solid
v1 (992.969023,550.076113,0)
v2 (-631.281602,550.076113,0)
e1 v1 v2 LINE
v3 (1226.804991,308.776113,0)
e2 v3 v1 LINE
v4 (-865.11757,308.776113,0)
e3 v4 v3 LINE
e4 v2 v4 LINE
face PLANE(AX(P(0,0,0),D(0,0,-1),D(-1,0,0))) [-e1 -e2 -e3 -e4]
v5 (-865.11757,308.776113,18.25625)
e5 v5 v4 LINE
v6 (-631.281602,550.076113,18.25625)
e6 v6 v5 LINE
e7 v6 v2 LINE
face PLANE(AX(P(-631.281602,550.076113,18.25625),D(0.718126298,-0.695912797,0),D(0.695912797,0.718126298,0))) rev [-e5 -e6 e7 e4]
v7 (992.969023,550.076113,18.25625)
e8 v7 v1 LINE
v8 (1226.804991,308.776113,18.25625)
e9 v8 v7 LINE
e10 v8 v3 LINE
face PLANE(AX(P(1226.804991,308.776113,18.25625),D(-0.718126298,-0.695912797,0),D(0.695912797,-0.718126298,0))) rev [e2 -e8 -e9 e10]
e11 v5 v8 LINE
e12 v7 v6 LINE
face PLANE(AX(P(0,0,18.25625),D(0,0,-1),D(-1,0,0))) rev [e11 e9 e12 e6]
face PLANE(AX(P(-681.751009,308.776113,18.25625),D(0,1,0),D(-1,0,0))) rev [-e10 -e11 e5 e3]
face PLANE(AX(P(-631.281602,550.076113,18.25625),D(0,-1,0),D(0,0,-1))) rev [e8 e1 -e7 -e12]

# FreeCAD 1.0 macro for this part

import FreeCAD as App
import Part
import Sketcher
Q = App.Units.Quantity

doc = App.newDocument("Part")
params = doc.addObject("Spreadsheet::Sheet", "Params")
for row, (alias, value) in enumerate([
    ("pad1_length", "0.71875 in"),
], start=1):
    params.set(f"A{row}", alias)
    params.set(f"B{row}", "=" + value)
    params.setAlias(f"B{row}", alias)

body = doc.addObject("PartDesign::Body", "Body")

# Sketch on XY plane
sketch1 = doc.addObject("Sketcher::SketchObject", "Sketch")
body.addObject(sketch1)
sketch1.AttachmentSupport = (doc.XY_Plane, [""])
sketch1.MapMode = "FlatFace"
sketch1.addGeometry([
    Part.LineSegment(App.Vector(1227, 309, 0), App.Vector(993, 550, 0)),
    Part.LineSegment(App.Vector(993, 550, 0), App.Vector(-631, 550, 0)),
    Part.LineSegment(App.Vector(-631, 550, 0), App.Vector(-865, 309, 0)),
    Part.LineSegment(App.Vector(-865, 309, 0), App.Vector(1227, 309, 0)),
], False)
sketch1.addConstraint([
    Sketcher.Constraint("Coincident", 0, 2, 1, 1),
    Sketcher.Constraint("Coincident", 1, 2, 2, 1),
    Sketcher.Constraint("Coincident", 2, 2, 3, 1),
    Sketcher.Constraint("Coincident", 3, 2, 0, 1),
    Sketcher.Constraint("Horizontal", 1),
    Sketcher.Constraint("Horizontal", 3),
    Sketcher.Constraint("Equal", 0, 2),
    Sketcher.Constraint("Angle", 0, Q("134.1 deg")),
    Sketcher.Constraint("DistanceY", 2, 2, 1, 2, Q("9.5 in")),
    Sketcher.Constraint("DistanceX", 3, 1, 3, 2, Q("2091.922561 mm")),
    Sketcher.Constraint("DistanceX", 2, 2, -1, 1, Q("865.11757 mm")),
    Sketcher.Constraint("DistanceY", -1, 1, 0, 2, Q("550.076113 mm")),
])
pad1 = doc.addObject("PartDesign::Pad", "Pad")
body.addObject(pad1)
pad1.Profile = sketch1
pad1.setExpression("Length", "Params.pad1_length")

doc.recompute()
